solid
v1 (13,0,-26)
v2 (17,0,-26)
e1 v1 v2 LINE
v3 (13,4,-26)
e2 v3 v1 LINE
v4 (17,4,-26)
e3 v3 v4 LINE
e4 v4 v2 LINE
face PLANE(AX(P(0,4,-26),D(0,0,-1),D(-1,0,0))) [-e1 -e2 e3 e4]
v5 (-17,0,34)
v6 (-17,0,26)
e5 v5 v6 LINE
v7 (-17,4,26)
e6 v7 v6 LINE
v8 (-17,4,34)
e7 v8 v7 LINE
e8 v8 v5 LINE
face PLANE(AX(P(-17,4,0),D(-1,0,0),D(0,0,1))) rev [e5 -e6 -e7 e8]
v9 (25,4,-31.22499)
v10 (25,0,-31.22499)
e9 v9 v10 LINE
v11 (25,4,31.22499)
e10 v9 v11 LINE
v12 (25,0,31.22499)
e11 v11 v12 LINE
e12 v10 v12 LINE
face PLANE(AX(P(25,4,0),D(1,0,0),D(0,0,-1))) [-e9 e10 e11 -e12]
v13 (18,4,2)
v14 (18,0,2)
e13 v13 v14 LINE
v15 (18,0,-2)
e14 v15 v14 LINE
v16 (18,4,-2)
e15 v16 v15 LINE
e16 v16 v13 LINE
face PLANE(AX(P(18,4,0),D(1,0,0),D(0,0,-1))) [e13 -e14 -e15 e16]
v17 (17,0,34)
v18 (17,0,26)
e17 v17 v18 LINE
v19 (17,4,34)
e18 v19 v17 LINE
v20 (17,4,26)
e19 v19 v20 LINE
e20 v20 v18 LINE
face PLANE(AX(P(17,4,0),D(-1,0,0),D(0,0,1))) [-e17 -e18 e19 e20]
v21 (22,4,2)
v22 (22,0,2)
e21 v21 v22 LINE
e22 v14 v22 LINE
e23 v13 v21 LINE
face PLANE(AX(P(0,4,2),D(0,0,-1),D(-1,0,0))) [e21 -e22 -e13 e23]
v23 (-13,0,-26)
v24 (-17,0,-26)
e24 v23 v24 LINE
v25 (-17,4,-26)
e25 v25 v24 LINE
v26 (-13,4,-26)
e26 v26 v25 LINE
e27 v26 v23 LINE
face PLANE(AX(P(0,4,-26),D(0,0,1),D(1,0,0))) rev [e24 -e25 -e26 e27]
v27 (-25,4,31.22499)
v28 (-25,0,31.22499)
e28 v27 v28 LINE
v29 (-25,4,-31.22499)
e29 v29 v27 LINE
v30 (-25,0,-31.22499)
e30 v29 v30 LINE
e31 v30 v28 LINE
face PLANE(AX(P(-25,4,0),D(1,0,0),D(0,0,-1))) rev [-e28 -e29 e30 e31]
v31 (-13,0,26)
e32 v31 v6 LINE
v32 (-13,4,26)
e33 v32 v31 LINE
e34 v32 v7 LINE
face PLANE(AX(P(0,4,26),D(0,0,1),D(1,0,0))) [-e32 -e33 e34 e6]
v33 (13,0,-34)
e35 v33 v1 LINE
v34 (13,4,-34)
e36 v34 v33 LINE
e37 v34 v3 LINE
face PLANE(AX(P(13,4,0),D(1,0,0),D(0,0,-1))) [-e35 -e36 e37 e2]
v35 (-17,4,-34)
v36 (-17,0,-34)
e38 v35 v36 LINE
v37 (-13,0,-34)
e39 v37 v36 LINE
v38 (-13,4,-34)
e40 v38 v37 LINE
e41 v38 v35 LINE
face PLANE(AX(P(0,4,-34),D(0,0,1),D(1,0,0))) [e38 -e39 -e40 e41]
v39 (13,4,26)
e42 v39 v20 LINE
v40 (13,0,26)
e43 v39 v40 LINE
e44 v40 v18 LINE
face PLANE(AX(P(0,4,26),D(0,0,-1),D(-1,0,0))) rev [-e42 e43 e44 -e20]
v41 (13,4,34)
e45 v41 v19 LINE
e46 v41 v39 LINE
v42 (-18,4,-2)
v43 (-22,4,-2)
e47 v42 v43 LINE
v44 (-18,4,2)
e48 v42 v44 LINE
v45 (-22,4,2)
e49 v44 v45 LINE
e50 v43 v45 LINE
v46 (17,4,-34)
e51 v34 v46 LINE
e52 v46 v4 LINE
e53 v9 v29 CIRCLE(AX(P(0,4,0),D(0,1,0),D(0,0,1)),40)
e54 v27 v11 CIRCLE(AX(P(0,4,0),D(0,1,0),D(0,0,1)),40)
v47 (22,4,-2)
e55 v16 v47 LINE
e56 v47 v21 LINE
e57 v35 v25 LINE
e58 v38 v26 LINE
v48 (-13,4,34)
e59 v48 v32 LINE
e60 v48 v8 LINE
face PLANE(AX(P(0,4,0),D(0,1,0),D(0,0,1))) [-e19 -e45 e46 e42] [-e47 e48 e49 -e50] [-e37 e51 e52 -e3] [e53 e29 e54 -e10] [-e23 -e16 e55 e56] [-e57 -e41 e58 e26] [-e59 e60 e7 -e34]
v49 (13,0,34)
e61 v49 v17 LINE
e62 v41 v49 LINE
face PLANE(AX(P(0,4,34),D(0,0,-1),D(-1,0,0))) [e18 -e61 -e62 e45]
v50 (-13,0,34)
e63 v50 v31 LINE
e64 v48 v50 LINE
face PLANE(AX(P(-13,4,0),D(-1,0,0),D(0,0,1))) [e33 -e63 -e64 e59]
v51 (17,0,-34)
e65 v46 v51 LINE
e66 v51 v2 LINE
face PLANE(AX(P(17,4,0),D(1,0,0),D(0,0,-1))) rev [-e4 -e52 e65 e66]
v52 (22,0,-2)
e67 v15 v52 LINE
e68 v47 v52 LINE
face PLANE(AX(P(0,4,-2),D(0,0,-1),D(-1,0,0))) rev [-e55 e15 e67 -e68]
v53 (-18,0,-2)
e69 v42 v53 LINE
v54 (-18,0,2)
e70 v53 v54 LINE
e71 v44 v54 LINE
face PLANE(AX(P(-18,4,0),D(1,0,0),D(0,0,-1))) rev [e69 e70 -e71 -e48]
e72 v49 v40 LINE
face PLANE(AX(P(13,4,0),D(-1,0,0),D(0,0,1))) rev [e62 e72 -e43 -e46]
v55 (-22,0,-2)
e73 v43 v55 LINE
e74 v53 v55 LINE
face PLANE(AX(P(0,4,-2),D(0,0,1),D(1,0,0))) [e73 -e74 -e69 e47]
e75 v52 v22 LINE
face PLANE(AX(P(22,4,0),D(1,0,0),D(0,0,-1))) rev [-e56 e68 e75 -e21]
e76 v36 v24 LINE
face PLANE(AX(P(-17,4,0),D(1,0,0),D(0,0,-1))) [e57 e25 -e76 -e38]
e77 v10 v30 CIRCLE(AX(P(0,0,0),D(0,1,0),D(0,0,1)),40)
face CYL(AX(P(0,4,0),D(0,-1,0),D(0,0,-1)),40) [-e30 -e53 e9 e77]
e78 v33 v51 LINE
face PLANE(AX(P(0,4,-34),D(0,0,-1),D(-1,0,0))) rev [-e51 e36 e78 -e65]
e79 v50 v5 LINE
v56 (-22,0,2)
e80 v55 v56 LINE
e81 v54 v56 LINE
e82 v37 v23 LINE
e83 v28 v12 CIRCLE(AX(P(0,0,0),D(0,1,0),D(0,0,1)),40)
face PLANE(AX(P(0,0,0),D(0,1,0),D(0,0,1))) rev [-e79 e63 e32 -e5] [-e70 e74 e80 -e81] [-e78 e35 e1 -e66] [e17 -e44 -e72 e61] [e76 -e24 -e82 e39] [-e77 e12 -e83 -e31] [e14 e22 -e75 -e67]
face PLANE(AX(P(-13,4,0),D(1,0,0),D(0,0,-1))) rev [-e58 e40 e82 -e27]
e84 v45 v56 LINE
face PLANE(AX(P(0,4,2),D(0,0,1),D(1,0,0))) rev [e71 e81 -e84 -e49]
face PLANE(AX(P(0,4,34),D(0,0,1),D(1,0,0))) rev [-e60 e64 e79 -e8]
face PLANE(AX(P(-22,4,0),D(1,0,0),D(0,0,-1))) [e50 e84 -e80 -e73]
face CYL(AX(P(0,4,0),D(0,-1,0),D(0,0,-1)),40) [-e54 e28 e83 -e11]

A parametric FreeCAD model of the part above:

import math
import FreeCAD as App
import Part
import Sketcher

V = App.Vector
Q = App.Units.Quantity


def add_polygon(sketch, points):
    """Adds a closed chain of lines whose ends are joined by coincident constraints."""
    first, n = sketch.GeometryCount, len(points)
    for a, b in zip(points, points[1:] + points[:1]):
        sketch.addGeometry(Part.LineSegment(App.Vector(*a, 0), App.Vector(*b, 0)), False)
    for i in range(n):
        sketch.addConstraint(Sketcher.Constraint("Coincident", first + i, 2, first + (i + 1) % n, 1))

doc = App.newDocument("Part")
body = doc.addObject("PartDesign::Body", "Body")

# Sketch on XZ plane
sketch1 = body.newObject("Sketcher::SketchObject", "Sketch")
sketch1.AttachmentSupport = (doc.getObject("XZ_Plane"), [""])
sketch1.MapMode = "FlatFace"
sketch1.addGeometry(Part.ArcOfCircle(Part.Circle(V(0, 0, 0), V(0, 0, 1), 40), math.radians(-129), math.radians(-51)), False)  # 0
sketch1.addGeometry(Part.LineSegment(V(-25, -31.2, 0), V(-25, 31.2, 0)), False)  # 1
sketch1.addGeometry(Part.ArcOfCircle(Part.Circle(V(0, 0, 0), V(0, 0, 1), 40), math.radians(51), math.radians(129)), False)  # 2
sketch1.addGeometry(Part.LineSegment(V(25, 31.2, 0), V(25, -31.2, 0)), False)  # 3
add_polygon(sketch1, [(-13, 34), (-17, 34), (-17, 26), (-13, 26)])  # lines 4-7
add_polygon(sketch1, [(17, 34), (13, 34), (13, 26), (17, 26)])  # lines 8-11
add_polygon(sketch1, [(-18, 2), (-22, 2), (-22, -2), (-18, -2)])  # lines 12-15
add_polygon(sketch1, [(-13, -26), (-17, -26), (-17, -34), (-13, -34)])  # lines 16-19
add_polygon(sketch1, [(22, 2), (18, 2), (18, -2), (22, -2)])  # lines 20-23
add_polygon(sketch1, [(17, -26), (13, -26), (13, -34), (17, -34)])  # lines 24-27
sketch1.addConstraint([
    Sketcher.Constraint("Coincident", 0, 1, 1, 1),
    Sketcher.Constraint("Coincident", 1, 2, 2, 2),
    Sketcher.Constraint("Coincident", 2, 1, 3, 1),
    Sketcher.Constraint("Coincident", 3, 2, 0, 2),
    Sketcher.Constraint("Vertical", 1),
    Sketcher.Constraint("Vertical", 3),
    Sketcher.Constraint("Horizontal", 4),
    Sketcher.Constraint("Vertical", 5),
    Sketcher.Constraint("Horizontal", 6),
    Sketcher.Constraint("Vertical", 7),
    Sketcher.Constraint("Horizontal", 8),
    Sketcher.Constraint("Vertical", 9),
    Sketcher.Constraint("Horizontal", 10),
    Sketcher.Constraint("Vertical", 11),
    Sketcher.Constraint("Horizontal", 12),
    Sketcher.Constraint("Vertical", 13),
    Sketcher.Constraint("Horizontal", 14),
    Sketcher.Constraint("Vertical", 15),
    Sketcher.Constraint("Horizontal", 16),
    Sketcher.Constraint("Vertical", 17),
    Sketcher.Constraint("Horizontal", 18),
    Sketcher.Constraint("Vertical", 19),
    Sketcher.Constraint("Horizontal", 20),
    Sketcher.Constraint("Vertical", 21),
    Sketcher.Constraint("Horizontal", 22),
    Sketcher.Constraint("Vertical", 23),
    Sketcher.Constraint("Horizontal", 24),
    Sketcher.Constraint("Vertical", 25),
    Sketcher.Constraint("Horizontal", 26),
    Sketcher.Constraint("Vertical", 27),
    Sketcher.Constraint("Coincident", 0, 3, -1, 1),
    Sketcher.Constraint("Coincident", 2, 3, -1, 1),
    Sketcher.Constraint("Equal", 0, 2),
    Sketcher.Constraint("Symmetric", 10, 2, 16, 2, -1, 1),
    Sketcher.Constraint("Symmetric", 8, 2, 18, 2, -1, 1),
    Sketcher.Constraint("Symmetric", 14, 2, 20, 2, -1, 1),
    Sketcher.Constraint("Symmetric", 12, 2, 22, 2, -1, 1),
    Sketcher.Constraint("Symmetric", 6, 2, 24, 2, -1, 1),
    Sketcher.Constraint("Symmetric", 4, 2, 26, 2, -1, 1),
    Sketcher.Constraint("Symmetric", 7, 2, 8, 2, -2),
    Sketcher.Constraint("Symmetric", 5, 2, 10, 2, -2),
    Sketcher.Constraint("Horizontal", 1, 2, 2, 1),
    Sketcher.Constraint("Horizontal", 15, 2, 20, 2),
    Sketcher.Constraint("Equal", 10, 12),
    Sketcher.Constraint("Equal", 26, 13),
    Sketcher.Constraint("Radius", 0, Q("40 mm")),
    Sketcher.Constraint("DistanceX", 4, 2, 4, 1, Q("4 mm")),
    Sketcher.Constraint("DistanceY", 5, 2, 5, 1, Q("8 mm")),
    Sketcher.Constraint("DistanceX", 0, 1, -1, 1, Q("25 mm")),
    Sketcher.Constraint("DistanceX", 4, 2, -1, 1, Q("17 mm")),
    Sketcher.Constraint("DistanceY", -1, 1, 4, 2, Q("34 mm")),
    Sketcher.Constraint("DistanceX", 12, 2, -1, 1, Q("22 mm")),
])
pad1 = body.newObject("PartDesign::Pad", "Pad")
pad1.Profile = sketch1
pad1.Length = 4
pad1.Reversed = True

doc.recompute()
